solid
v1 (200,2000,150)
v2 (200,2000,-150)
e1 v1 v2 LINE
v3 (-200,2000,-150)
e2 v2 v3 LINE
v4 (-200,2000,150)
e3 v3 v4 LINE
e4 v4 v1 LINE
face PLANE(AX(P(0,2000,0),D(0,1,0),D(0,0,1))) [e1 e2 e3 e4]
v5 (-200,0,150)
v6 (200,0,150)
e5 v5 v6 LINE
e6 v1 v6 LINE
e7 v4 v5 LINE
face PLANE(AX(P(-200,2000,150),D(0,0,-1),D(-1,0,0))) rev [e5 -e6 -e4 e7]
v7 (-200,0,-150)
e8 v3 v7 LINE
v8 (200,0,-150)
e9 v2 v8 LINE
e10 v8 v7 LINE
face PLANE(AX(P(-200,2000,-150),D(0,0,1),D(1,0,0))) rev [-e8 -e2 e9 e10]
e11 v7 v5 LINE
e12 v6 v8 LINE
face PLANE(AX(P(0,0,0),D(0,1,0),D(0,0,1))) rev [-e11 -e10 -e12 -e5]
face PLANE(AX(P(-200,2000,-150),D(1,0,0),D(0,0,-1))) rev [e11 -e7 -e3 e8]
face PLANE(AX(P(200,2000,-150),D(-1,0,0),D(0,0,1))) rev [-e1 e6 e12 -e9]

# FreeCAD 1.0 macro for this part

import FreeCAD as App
import Part
import Sketcher
from FreeCAD import Vector


def add_polygon(sketch, points):
    """Adds a closed chain of lines whose ends are joined by coincident constraints."""
    first, n = sketch.GeometryCount, len(points)
    for a, b in zip(points, points[1:] + points[:1]):
        sketch.addGeometry(Part.LineSegment(App.Vector(*a, 0), App.Vector(*b, 0)), False)
    for i in range(n):
        sketch.addConstraint(Sketcher.Constraint("Coincident", first + i, 2, first + (i + 1) % n, 1))

doc = App.newDocument("Part")
body = doc.addObject("PartDesign::Body", "Body")

sketch1 = body.newObject("Sketcher::SketchObject", "Sketch")
sketch1.AttachmentSupport = (doc.getObject("XZ_Plane"), [""])
sketch1.MapMode = "FlatFace"
add_polygon(sketch1, [(-200, -150), (-200, 150), (200, 150), (200, -150)])
sketch1.addConstraint([
    Sketcher.Constraint("Vertical", 0),
    Sketcher.Constraint("Horizontal", 1),
    Sketcher.Constraint("Vertical", 2),
    Sketcher.Constraint("Horizontal", 3),
    Sketcher.Constraint("Symmetric", 0, 2, 2, 2, -1, 1),
    Sketcher.Constraint("DistanceX", 1, 1, 1, 2, 400.0),
    Sketcher.Constraint("DistanceY", 0, 1, 0, 2, 300.0),
])
pad1 = body.newObject("PartDesign::Pad", "Pad")
pad1.Profile = sketch1
pad1.Length = 2000
pad1.Reversed = True

doc.recompute()
